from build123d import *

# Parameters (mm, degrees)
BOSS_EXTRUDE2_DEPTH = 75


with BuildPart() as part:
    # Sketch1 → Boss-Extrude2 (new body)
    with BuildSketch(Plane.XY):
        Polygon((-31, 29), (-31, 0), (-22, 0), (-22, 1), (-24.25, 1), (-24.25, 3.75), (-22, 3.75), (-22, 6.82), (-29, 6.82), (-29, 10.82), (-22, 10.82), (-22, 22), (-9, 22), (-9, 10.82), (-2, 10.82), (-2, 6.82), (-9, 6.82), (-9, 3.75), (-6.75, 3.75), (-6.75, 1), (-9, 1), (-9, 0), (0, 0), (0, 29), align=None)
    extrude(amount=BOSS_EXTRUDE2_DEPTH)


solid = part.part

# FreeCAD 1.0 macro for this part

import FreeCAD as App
import Part
import Sketcher
from FreeCAD import Vector
Q = App.Units.Quantity

doc = App.newDocument("Part")
body = doc.addObject("PartDesign::Body", "Body")

# Sketch on XY plane
sketch1 = doc.addObject("Sketcher::SketchObject", "Sketch")
body.addObject(sketch1)
sketch1.AttachmentSupport = (doc.XY_Plane, [""])
sketch1.MapMode = "FlatFace"
sketch1.addGeometry([
    Part.LineSegment(Vector(-31, 29, 0), Vector(-31, 0, 0)),  # 0
    Part.LineSegment(Vector(-31, 0, 0), Vector(-22, 0, 0)),  # 1
    Part.LineSegment(Vector(-22, 0, 0), Vector(-22, 1, 0)),  # 2
    Part.LineSegment(Vector(-22, 1, 0), Vector(-24.2, 1, 0)),  # 3
    Part.LineSegment(Vector(-24.2, 1, 0), Vector(-24.2, 3.8, 0)),  # 4
    Part.LineSegment(Vector(-24.2, 3.8, 0), Vector(-22, 3.8, 0)),  # 5
    Part.LineSegment(Vector(-22, 3.8, 0), Vector(-22, 6.8, 0)),  # 6
    Part.LineSegment(Vector(-22, 6.8, 0), Vector(-29, 6.8, 0)),  # 7
    Part.LineSegment(Vector(-29, 6.8, 0), Vector(-29, 10.8, 0)),  # 8
    Part.LineSegment(Vector(-29, 10.8, 0), Vector(-22, 10.8, 0)),  # 9
    Part.LineSegment(Vector(-22, 10.8, 0), Vector(-22, 22, 0)),  # 10
    Part.LineSegment(Vector(-22, 22, 0), Vector(-9, 22, 0)),  # 11
    Part.LineSegment(Vector(-9, 22, 0), Vector(-9, 10.8, 0)),  # 12
    Part.LineSegment(Vector(-9, 10.8, 0), Vector(-2, 10.8, 0)),  # 13
    Part.LineSegment(Vector(-2, 10.8, 0), Vector(-2, 6.8, 0)),  # 14
    Part.LineSegment(Vector(-2, 6.8, 0), Vector(-9, 6.8, 0)),  # 15
    Part.LineSegment(Vector(-9, 6.8, 0), Vector(-9, 3.8, 0)),  # 16
    Part.LineSegment(Vector(-9, 3.8, 0), Vector(-6.8, 3.8, 0)),  # 17
    Part.LineSegment(Vector(-6.8, 3.8, 0), Vector(-6.8, 1, 0)),  # 18
    Part.LineSegment(Vector(-6.8, 1, 0), Vector(-9, 1, 0)),  # 19
    Part.LineSegment(Vector(-9, 1, 0), Vector(-9, 0, 0)),  # 20
    Part.LineSegment(Vector(-9, 0, 0), Vector(0, 0, 0)),  # 21
    Part.LineSegment(Vector(0, 0, 0), Vector(0, 29, 0)),  # 22
    Part.LineSegment(Vector(0, 29, 0), Vector(-31, 29, 0)),  # 23
], False)
sketch1.addConstraint([
    Sketcher.Constraint("Coincident", 0, 2, 1, 1),
    Sketcher.Constraint("Coincident", 1, 2, 2, 1),
    Sketcher.Constraint("Coincident", 2, 2, 3, 1),
    Sketcher.Constraint("Coincident", 3, 2, 4, 1),
    Sketcher.Constraint("Coincident", 4, 2, 5, 1),
    Sketcher.Constraint("Coincident", 5, 2, 6, 1),
    Sketcher.Constraint("Coincident", 6, 2, 7, 1),
    Sketcher.Constraint("Coincident", 7, 2, 8, 1),
    Sketcher.Constraint("Coincident", 8, 2, 9, 1),
    Sketcher.Constraint("Coincident", 9, 2, 10, 1),
    Sketcher.Constraint("Coincident", 10, 2, 11, 1),
    Sketcher.Constraint("Coincident", 11, 2, 12, 1),
    Sketcher.Constraint("Coincident", 12, 2, 13, 1),
    Sketcher.Constraint("Coincident", 13, 2, 14, 1),
    Sketcher.Constraint("Coincident", 14, 2, 15, 1),
    Sketcher.Constraint("Coincident", 15, 2, 16, 1),
    Sketcher.Constraint("Coincident", 16, 2, 17, 1),
    Sketcher.Constraint("Coincident", 17, 2, 18, 1),
    Sketcher.Constraint("Coincident", 18, 2, 19, 1),
    Sketcher.Constraint("Coincident", 19, 2, 20, 1),
    Sketcher.Constraint("Coincident", 20, 2, 21, 1),
    Sketcher.Constraint("Coincident", 21, 2, 22, 1),
    Sketcher.Constraint("Coincident", 22, 2, 23, 1),
    Sketcher.Constraint("Coincident", 23, 2, 0, 1),
    Sketcher.Constraint("Vertical", 0),
    Sketcher.Constraint("Horizontal", 1),
    Sketcher.Constraint("Vertical", 2),
    Sketcher.Constraint("Horizontal", 3),
    Sketcher.Constraint("Vertical", 4),
    Sketcher.Constraint("Horizontal", 5),
    Sketcher.Constraint("Vertical", 6),
    Sketcher.Constraint("Horizontal", 7),
    Sketcher.Constraint("Vertical", 8),
    Sketcher.Constraint("Horizontal", 9),
    Sketcher.Constraint("Vertical", 10),
    Sketcher.Constraint("Horizontal", 11),
    Sketcher.Constraint("Vertical", 12),
    Sketcher.Constraint("Horizontal", 13),
    Sketcher.Constraint("Vertical", 14),
    Sketcher.Constraint("Horizontal", 15),
    Sketcher.Constraint("Vertical", 16),
    Sketcher.Constraint("Horizontal", 17),
    Sketcher.Constraint("Vertical", 18),
    Sketcher.Constraint("Horizontal", 19),
    Sketcher.Constraint("Vertical", 20),
    Sketcher.Constraint("Horizontal", 21),
    Sketcher.Constraint("Vertical", 22),
    Sketcher.Constraint("Horizontal", 23),
    Sketcher.Constraint("Coincident", 21, 2, -1, 1),
    Sketcher.Constraint("PointOnObject", 0, 2, -1),
    Sketcher.Constraint("Horizontal", 9, 2, 12, 2),
    Sketcher.Constraint("Horizontal", 7, 2, 14, 2),
    Sketcher.Constraint("Horizontal", 5, 2, 16, 2),
    Sketcher.Constraint("Horizontal", 3, 2, 18, 2),
    Sketcher.Constraint("Vertical", 2, 2, 5, 2),
    Sketcher.Constraint("Vertical", 6, 2, 9, 2),
    Sketcher.Constraint("Vertical", 12, 2, 15, 2),
    Sketcher.Constraint("Vertical", 16, 2, 19, 2),
    Sketcher.Constraint("Equal", 9, 13),
    Sketcher.Constraint("Equal", 5, 17),
    Sketcher.Constraint("Equal", 1, 21),
    Sketcher.Constraint("DistanceX", 1, 1, 1, 2, Q("9 mm")),
    Sketcher.Constraint("DistanceX", 7, 2, 7, 1, Q("7 mm")),
    Sketcher.Constraint("DistanceX", 11, 1, 11, 2, Q("13 mm")),
    Sketcher.Constraint("DistanceY", 0, 2, 0, 1, Q("29 mm")),
    Sketcher.Constraint("DistanceY", 2, 1, 2, 2, Q("1 mm")),
    Sketcher.Constraint("DistanceY", 8, 1, 8, 2, Q("4 mm")),
    Sketcher.Constraint("DistanceY", -1, 1, 10, 2, Q("22 mm")),
    Sketcher.Constraint("DistanceX", 3, 2, 3, 1, Q("2.25 mm")),
    Sketcher.Constraint("DistanceY", 4, 1, 4, 2, Q("2.75 mm")),
    Sketcher.Constraint("DistanceY", 6, 1, 6, 2, Q("3.07 mm")),
])
pad1 = doc.addObject("PartDesign::Pad", "Pad")
body.addObject(pad1)
pad1.Profile = sketch1
pad1.Length = 75

doc.recompute()
